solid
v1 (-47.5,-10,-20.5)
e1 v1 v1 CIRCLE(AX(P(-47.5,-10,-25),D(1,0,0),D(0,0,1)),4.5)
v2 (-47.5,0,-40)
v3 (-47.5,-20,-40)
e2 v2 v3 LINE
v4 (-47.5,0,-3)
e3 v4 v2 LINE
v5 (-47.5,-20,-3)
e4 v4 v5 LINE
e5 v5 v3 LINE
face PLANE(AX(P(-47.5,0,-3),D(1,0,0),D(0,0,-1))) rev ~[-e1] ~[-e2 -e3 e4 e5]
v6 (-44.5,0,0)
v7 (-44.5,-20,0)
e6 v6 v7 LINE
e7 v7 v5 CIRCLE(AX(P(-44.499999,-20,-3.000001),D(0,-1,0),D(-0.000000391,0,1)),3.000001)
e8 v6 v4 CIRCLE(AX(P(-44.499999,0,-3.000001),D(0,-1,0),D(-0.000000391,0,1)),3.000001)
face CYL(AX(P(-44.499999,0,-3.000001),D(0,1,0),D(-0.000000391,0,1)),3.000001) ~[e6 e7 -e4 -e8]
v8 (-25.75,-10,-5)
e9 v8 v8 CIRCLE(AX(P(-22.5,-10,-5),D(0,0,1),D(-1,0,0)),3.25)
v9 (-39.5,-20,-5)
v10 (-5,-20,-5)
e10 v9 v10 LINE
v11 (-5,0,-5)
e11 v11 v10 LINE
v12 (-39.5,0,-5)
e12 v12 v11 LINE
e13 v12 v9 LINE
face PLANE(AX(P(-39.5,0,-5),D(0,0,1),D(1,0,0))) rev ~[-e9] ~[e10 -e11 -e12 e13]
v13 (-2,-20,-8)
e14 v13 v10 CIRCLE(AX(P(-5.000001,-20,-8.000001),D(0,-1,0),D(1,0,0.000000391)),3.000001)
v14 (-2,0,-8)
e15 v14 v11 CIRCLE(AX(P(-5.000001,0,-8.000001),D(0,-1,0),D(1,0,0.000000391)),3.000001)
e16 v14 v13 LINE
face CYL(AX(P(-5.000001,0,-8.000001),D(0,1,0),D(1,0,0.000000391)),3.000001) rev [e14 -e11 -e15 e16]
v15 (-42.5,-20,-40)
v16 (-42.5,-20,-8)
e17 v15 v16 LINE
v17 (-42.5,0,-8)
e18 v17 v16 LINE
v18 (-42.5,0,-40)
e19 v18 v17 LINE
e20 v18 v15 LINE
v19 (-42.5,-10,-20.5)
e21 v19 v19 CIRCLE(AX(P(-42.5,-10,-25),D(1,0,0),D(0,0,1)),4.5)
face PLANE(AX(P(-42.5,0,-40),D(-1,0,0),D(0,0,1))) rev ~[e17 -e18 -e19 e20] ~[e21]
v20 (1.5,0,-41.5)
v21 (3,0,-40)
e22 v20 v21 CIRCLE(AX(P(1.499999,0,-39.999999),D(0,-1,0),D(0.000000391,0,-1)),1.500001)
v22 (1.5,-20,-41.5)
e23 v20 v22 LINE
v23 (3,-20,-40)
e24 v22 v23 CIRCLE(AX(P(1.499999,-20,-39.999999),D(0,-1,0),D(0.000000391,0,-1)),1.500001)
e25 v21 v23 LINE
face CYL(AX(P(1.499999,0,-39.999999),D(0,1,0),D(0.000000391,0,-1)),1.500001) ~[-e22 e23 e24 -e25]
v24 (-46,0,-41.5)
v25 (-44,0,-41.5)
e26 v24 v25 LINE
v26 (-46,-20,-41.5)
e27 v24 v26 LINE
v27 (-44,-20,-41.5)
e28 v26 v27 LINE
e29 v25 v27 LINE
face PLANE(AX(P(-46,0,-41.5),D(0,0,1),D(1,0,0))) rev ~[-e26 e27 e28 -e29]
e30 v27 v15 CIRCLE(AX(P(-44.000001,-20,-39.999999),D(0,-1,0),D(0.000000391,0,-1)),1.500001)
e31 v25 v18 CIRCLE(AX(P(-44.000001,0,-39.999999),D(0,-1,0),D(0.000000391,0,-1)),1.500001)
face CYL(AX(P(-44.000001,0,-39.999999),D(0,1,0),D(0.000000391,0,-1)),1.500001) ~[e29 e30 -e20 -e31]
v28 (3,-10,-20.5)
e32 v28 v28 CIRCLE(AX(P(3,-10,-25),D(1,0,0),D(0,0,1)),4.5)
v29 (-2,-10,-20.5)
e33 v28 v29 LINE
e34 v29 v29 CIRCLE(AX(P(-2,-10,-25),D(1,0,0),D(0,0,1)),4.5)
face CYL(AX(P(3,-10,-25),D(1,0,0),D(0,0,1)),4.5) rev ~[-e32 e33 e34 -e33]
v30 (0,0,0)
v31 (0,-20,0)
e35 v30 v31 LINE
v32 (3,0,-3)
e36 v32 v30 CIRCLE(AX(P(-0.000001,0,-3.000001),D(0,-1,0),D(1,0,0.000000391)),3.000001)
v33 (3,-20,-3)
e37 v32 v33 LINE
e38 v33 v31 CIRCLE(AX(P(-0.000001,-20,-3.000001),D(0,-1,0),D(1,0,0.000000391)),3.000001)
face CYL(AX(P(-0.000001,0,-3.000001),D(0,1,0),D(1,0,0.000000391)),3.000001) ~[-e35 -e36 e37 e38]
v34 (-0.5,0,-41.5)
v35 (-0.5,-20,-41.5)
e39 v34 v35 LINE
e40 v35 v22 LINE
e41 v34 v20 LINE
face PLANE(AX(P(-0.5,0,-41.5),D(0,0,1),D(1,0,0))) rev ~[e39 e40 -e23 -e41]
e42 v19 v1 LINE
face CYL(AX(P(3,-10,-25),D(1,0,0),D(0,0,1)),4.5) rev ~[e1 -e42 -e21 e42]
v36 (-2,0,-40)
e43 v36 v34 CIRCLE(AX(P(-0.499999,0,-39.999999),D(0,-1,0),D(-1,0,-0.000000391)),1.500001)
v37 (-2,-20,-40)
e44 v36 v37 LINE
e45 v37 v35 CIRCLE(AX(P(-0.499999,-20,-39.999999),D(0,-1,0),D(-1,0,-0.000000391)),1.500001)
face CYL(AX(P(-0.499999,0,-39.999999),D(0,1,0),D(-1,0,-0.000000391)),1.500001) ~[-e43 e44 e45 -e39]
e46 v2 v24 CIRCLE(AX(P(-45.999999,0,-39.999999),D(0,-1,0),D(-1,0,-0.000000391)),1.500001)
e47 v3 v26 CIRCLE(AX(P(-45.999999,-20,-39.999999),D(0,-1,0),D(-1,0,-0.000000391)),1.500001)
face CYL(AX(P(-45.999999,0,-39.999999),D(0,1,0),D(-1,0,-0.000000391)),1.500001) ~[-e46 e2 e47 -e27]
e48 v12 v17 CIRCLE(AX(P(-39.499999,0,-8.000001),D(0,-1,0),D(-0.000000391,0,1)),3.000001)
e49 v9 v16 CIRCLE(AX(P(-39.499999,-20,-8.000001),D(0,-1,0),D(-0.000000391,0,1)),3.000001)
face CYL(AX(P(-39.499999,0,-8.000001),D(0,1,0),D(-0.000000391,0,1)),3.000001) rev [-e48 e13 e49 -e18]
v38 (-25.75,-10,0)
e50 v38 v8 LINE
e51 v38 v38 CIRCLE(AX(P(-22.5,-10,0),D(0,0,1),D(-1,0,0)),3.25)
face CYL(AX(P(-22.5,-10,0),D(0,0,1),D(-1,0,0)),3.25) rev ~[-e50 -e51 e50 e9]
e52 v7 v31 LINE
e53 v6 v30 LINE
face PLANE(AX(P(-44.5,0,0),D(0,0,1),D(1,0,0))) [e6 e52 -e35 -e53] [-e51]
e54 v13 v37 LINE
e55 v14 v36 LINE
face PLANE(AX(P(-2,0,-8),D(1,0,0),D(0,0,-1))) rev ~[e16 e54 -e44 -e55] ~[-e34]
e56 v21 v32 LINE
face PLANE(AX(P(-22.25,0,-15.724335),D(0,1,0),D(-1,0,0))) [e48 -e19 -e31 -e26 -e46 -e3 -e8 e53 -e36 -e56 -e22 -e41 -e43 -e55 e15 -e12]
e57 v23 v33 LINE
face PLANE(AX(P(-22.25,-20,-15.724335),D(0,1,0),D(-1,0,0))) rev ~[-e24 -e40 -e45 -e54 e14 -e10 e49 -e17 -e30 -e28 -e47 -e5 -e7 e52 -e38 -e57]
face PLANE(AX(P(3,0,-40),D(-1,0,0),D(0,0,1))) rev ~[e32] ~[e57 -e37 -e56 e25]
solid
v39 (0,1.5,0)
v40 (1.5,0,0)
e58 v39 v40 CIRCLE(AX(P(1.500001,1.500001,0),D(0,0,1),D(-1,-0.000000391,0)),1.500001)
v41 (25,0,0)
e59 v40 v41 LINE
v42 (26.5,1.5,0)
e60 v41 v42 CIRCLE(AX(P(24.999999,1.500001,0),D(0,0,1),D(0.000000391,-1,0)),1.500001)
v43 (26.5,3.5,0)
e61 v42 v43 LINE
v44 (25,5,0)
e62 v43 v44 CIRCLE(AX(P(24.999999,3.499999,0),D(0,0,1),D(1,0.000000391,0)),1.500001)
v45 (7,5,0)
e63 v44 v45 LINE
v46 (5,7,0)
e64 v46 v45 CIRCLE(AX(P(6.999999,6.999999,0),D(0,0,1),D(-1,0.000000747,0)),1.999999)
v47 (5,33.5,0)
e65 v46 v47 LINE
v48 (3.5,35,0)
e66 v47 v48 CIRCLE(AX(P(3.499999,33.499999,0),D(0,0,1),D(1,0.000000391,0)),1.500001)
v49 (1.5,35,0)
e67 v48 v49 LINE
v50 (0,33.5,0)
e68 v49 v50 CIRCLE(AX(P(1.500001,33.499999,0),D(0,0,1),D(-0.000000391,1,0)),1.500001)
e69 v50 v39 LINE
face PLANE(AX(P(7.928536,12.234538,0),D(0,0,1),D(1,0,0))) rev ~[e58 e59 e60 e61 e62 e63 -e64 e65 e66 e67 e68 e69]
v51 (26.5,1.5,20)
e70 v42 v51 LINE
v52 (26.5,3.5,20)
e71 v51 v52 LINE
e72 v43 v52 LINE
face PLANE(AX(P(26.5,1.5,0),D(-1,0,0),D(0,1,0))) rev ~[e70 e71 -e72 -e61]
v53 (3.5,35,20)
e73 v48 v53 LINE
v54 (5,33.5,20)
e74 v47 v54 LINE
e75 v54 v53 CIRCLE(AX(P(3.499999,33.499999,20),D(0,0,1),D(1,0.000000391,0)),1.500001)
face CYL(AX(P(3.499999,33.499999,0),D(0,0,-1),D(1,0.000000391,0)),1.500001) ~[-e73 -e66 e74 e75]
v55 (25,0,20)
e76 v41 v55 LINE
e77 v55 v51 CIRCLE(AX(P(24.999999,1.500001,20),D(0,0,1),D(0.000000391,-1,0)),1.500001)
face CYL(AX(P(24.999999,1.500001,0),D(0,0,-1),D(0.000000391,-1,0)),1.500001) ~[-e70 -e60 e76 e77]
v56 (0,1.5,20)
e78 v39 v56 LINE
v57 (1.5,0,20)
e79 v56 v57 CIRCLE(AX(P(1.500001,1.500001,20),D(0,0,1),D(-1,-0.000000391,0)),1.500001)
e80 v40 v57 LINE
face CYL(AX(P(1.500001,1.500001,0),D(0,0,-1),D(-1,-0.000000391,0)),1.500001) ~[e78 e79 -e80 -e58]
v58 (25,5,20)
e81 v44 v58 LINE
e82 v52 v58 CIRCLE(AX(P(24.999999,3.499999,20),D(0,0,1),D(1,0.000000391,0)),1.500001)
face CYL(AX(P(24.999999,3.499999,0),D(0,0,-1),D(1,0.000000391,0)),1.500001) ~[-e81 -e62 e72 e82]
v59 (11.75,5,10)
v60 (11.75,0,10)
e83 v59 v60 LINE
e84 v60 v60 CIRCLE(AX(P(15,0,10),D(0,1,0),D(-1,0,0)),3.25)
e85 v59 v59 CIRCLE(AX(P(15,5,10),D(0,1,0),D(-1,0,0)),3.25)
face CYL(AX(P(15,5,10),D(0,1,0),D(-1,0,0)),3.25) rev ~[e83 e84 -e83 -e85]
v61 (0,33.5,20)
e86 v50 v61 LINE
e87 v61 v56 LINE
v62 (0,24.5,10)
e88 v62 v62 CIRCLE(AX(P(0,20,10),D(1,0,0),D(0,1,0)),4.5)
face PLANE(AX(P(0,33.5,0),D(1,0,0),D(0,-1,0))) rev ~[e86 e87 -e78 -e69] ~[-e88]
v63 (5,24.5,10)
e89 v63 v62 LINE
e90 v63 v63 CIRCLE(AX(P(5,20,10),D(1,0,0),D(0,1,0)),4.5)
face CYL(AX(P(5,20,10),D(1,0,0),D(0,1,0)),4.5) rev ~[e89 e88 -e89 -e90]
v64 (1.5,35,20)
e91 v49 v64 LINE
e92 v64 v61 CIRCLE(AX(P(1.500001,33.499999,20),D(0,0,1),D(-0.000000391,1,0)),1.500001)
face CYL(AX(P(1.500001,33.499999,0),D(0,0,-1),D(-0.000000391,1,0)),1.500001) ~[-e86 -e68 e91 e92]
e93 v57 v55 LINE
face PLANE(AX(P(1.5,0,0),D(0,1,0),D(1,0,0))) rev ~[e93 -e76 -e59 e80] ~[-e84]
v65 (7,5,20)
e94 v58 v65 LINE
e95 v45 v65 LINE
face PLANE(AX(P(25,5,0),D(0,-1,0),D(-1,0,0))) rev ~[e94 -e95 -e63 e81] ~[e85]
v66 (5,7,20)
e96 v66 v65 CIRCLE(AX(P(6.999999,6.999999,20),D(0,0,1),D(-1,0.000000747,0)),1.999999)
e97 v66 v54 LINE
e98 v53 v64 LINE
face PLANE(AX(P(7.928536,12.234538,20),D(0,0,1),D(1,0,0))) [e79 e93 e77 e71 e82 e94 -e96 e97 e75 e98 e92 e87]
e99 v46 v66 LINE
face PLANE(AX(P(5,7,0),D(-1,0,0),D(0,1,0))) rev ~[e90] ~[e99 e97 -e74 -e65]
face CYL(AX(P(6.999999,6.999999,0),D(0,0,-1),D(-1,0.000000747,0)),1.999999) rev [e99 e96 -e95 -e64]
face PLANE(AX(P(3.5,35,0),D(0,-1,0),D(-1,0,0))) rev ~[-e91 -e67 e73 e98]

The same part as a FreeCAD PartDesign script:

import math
import FreeCAD as App
import Part
import Sketcher
from FreeCAD import Vector

doc = App.newDocument("Part")
body = doc.addObject("PartDesign::Body", "Body")

# Sketch on XY plane
sketch1 = doc.addObject("Sketcher::SketchObject", "Sketch")
body.addObject(sketch1)
sketch1.AttachmentSupport = (doc.XY_Plane, [""])
sketch1.MapMode = "FlatFace"
sketch1.addGeometry(Part.LineSegment(Vector(0, 33.5, 0), Vector(0, 1.5, 0)), False)
sketch1.addGeometry(Part.ArcOfCircle(Part.Circle(Vector(1.5, 1.5, 0), Vector(0, 0, 1), 1.5), math.radians(-180), math.radians(-90)), False)
sketch1.addGeometry(Part.LineSegment(Vector(1.5, 0, 0), Vector(25, 0, 0)), False)
sketch1.addGeometry(Part.ArcOfCircle(Part.Circle(Vector(25, 1.5, 0), Vector(0, 0, 1), 1.5), math.radians(-90), math.radians(0)), False)
sketch1.addGeometry(Part.LineSegment(Vector(26.5, 1.5, 0), Vector(26.5, 3.5, 0)), False)
sketch1.addGeometry(Part.ArcOfCircle(Part.Circle(Vector(25, 3.5, 0), Vector(0, 0, 1), 1.5), math.radians(0), math.radians(90)), False)
sketch1.addGeometry(Part.LineSegment(Vector(25, 5, 0), Vector(7, 5, 0)), False)
sketch1.addGeometry(Part.ArcOfCircle(Part.Circle(Vector(7, 7, 0), Vector(0, 0, 1), 2), math.radians(180), math.radians(270)), False)
sketch1.addGeometry(Part.LineSegment(Vector(5, 7, 0), Vector(5, 33.5, 0)), False)
sketch1.addGeometry(Part.ArcOfCircle(Part.Circle(Vector(3.5, 33.5, 0), Vector(0, 0, 1), 1.5), math.radians(0), math.radians(90)), False)
sketch1.addGeometry(Part.LineSegment(Vector(3.5, 35, 0), Vector(1.5, 35, 0)), False)
sketch1.addGeometry(Part.ArcOfCircle(Part.Circle(Vector(1.5, 33.5, 0), Vector(0, 0, 1), 1.5), math.radians(90), math.radians(180)), False)
sketch1.addConstraint(Sketcher.Constraint("Tangent", 0, 2, 1, 1))
sketch1.addConstraint(Sketcher.Constraint("Tangent", 1, 2, 2, 1))
sketch1.addConstraint(Sketcher.Constraint("Tangent", 2, 2, 3, 1))
sketch1.addConstraint(Sketcher.Constraint("Tangent", 3, 2, 4, 1))
sketch1.addConstraint(Sketcher.Constraint("Tangent", 4, 2, 5, 1))
sketch1.addConstraint(Sketcher.Constraint("Tangent", 5, 2, 6, 1))
sketch1.addConstraint(Sketcher.Constraint("Tangent", 6, 2, 7, 2))
sketch1.addConstraint(Sketcher.Constraint("Tangent", 7, 1, 8, 1))
sketch1.addConstraint(Sketcher.Constraint("Tangent", 8, 2, 9, 1))
sketch1.addConstraint(Sketcher.Constraint("Tangent", 9, 2, 10, 1))
sketch1.addConstraint(Sketcher.Constraint("Tangent", 10, 2, 11, 1))
sketch1.addConstraint(Sketcher.Constraint("Tangent", 11, 2, 0, 1))
sketch1.addConstraint(Sketcher.Constraint("Vertical", 0))
sketch1.addConstraint(Sketcher.Constraint("Horizontal", 2))
sketch1.addConstraint(Sketcher.Constraint("Vertical", 4))
sketch1.addConstraint(Sketcher.Constraint("Horizontal", 6))
sketch1.addConstraint(Sketcher.Constraint("Vertical", 8))
sketch1.addConstraint(Sketcher.Constraint("Horizontal", 10))
sketch1.addConstraint(Sketcher.Constraint("Equal", 1, 3))
sketch1.addConstraint(Sketcher.Constraint("Equal", 3, 5))
sketch1.addConstraint(Sketcher.Constraint("Equal", 5, 9))
sketch1.addConstraint(Sketcher.Constraint("Equal", 9, 11))
sketch1.addConstraint(Sketcher.Constraint("PointOnObject", 0, 2, -2))
sketch1.addConstraint(Sketcher.Constraint("PointOnObject", 1, 2, -1))
sketch1.addConstraint(Sketcher.Constraint("Equal", 10, 4))
sketch1.addConstraint(Sketcher.Constraint("Radius", 7, 1.999999))
sketch1.addConstraint(Sketcher.Constraint("Radius", 1, 1.500001))
sketch1.addConstraint(Sketcher.Constraint("DistanceX", 6, 2, 6, 1, 18.0))
sketch1.addConstraint(Sketcher.Constraint("DistanceX", 10, 2, 10, 1, 2.0))
sketch1.addConstraint(Sketcher.Constraint("DistanceY", 0, 2, 0, 1, 32.0))
pad1 = doc.addObject("PartDesign::Pad", "Pad")
body.addObject(pad1)
pad1.Profile = sketch1
pad1.Length = 20

# Sketch on YZ plane
sketch2 = doc.addObject("Sketcher::SketchObject", "Sketch001")
body.addObject(sketch2)
sketch2.AttachmentSupport = (doc.YZ_Plane, [""])
sketch2.MapMode = "FlatFace"
sketch2.AttachmentOffset = App.Placement(Vector(0, 0, 5), App.Rotation())
sketch2.addGeometry(Part.Circle(Vector(20, 10, 0), Vector(0, 0, 1), 4.5), False)
sketch2.addConstraint(Sketcher.Constraint("Diameter", 0, 9.0))
sketch2.addConstraint(Sketcher.Constraint("DistanceX", -1, 1, 0, 3, 20.0))
sketch2.addConstraint(Sketcher.Constraint("DistanceY", -1, 1, 0, 3, 10.0))
pocket1 = doc.addObject("PartDesign::Pocket", "Pocket")
body.addObject(pocket1)
pocket1.Profile = sketch2
pocket1.Length = 5

# Sketch on XZ plane
sketch3 = doc.addObject("Sketcher::SketchObject", "Sketch002")
body.addObject(sketch3)
sketch3.AttachmentSupport = (doc.XZ_Plane, [""])
sketch3.MapMode = "FlatFace"
sketch3.AttachmentOffset = App.Placement(Vector(0, 0, -5), App.Rotation())
sketch3.addGeometry(Part.Circle(Vector(15, 10, 0), Vector(0, 0, 1), 3.2), False)
sketch3.addConstraint(Sketcher.Constraint("Diameter", 0, 6.5))
sketch3.addConstraint(Sketcher.Constraint("DistanceX", -1, 1, 0, 3, 15.0))
sketch3.addConstraint(Sketcher.Constraint("DistanceY", -1, 1, 0, 3, 10.0))
pocket2 = doc.addObject("PartDesign::Pocket", "Pocket001")
body.addObject(pocket2)
pocket2.Profile = sketch3
pocket2.Length = 5
pocket2.Reversed = True
body2 = doc.addObject("PartDesign::Body", "Body001")

# Sketch on XZ plane
sketch4 = doc.addObject("Sketcher::SketchObject", "Sketch003")
body2.addObject(sketch4)
sketch4.AttachmentSupport = (doc.getObject("XZ_Plane001"), [""])
sketch4.MapMode = "FlatFace"
sketch4.addGeometry(Part.LineSegment(Vector(0, 0, 0), Vector(-44.5, 0, 0)), False)
sketch4.addGeometry(Part.ArcOfCircle(Part.Circle(Vector(-44.5, -3, 0), Vector(0, 0, 1), 3), math.radians(90), math.radians(180)), False)
sketch4.addGeometry(Part.LineSegment(Vector(-47.5, -3, 0), Vector(-47.5, -40, 0)), False)
sketch4.addGeometry(Part.ArcOfCircle(Part.Circle(Vector(-46, -40, 0), Vector(0, 0, 1), 1.5), math.radians(-180), math.radians(-90)), False)
sketch4.addGeometry(Part.LineSegment(Vector(-46, -41.5, 0), Vector(-44, -41.5, 0)), False)
sketch4.addGeometry(Part.ArcOfCircle(Part.Circle(Vector(-44, -40, 0), Vector(0, 0, 1), 1.5), math.radians(-90), math.radians(0)), False)
sketch4.addGeometry(Part.LineSegment(Vector(-42.5, -40, 0), Vector(-42.5, -8, 0)), False)
sketch4.addGeometry(Part.ArcOfCircle(Part.Circle(Vector(-39.5, -8, 0), Vector(0, 0, 1), 3), math.radians(90), math.radians(180)), False)
sketch4.addGeometry(Part.LineSegment(Vector(-39.5, -5, 0), Vector(-5, -5, 0)), False)
sketch4.addGeometry(Part.ArcOfCircle(Part.Circle(Vector(-5, -8, 0), Vector(0, 0, 1), 3), math.radians(0), math.radians(90)), False)
sketch4.addGeometry(Part.LineSegment(Vector(-2, -8, 0), Vector(-2, -40, 0)), False)
sketch4.addGeometry(Part.ArcOfCircle(Part.Circle(Vector(-0.5, -40, 0), Vector(0, 0, 1), 1.5), math.radians(-180), math.radians(-90)), False)
sketch4.addGeometry(Part.LineSegment(Vector(-0.5, -41.5, 0), Vector(1.5, -41.5, 0)), False)
sketch4.addGeometry(Part.ArcOfCircle(Part.Circle(Vector(1.5, -40, 0), Vector(0, 0, 1), 1.5), math.radians(-90), math.radians(0)), False)
sketch4.addGeometry(Part.LineSegment(Vector(3, -40, 0), Vector(3, -3, 0)), False)
sketch4.addGeometry(Part.ArcOfCircle(Part.Circle(Vector(0, -3, 0), Vector(0, 0, 1), 3), math.radians(0), math.radians(90)), False)
sketch4.addConstraint(Sketcher.Constraint("Tangent", 0, 2, 1, 1))
sketch4.addConstraint(Sketcher.Constraint("Tangent", 1, 2, 2, 1))
sketch4.addConstraint(Sketcher.Constraint("Tangent", 2, 2, 3, 1))
sketch4.addConstraint(Sketcher.Constraint("Tangent", 3, 2, 4, 1))
sketch4.addConstraint(Sketcher.Constraint("Tangent", 4, 2, 5, 1))
sketch4.addConstraint(Sketcher.Constraint("Tangent", 5, 2, 6, 1))
sketch4.addConstraint(Sketcher.Constraint("Tangent", 6, 2, 7, 2))
sketch4.addConstraint(Sketcher.Constraint("Tangent", 7, 1, 8, 1))
sketch4.addConstraint(Sketcher.Constraint("Tangent", 8, 2, 9, 2))
sketch4.addConstraint(Sketcher.Constraint("Tangent", 9, 1, 10, 1))
sketch4.addConstraint(Sketcher.Constraint("Tangent", 10, 2, 11, 1))
sketch4.addConstraint(Sketcher.Constraint("Tangent", 11, 2, 12, 1))
sketch4.addConstraint(Sketcher.Constraint("Tangent", 12, 2, 13, 1))
sketch4.addConstraint(Sketcher.Constraint("Tangent", 13, 2, 14, 1))
sketch4.addConstraint(Sketcher.Constraint("Tangent", 14, 2, 15, 1))
sketch4.addConstraint(Sketcher.Constraint("Tangent", 15, 2, 0, 1))
sketch4.addConstraint(Sketcher.Constraint("Horizontal", 0))
sketch4.addConstraint(Sketcher.Constraint("Vertical", 2))
sketch4.addConstraint(Sketcher.Constraint("Horizontal", 4))
sketch4.addConstraint(Sketcher.Constraint("Vertical", 6))
sketch4.addConstraint(Sketcher.Constraint("Horizontal", 8))
sketch4.addConstraint(Sketcher.Constraint("Vertical", 10))
sketch4.addConstraint(Sketcher.Constraint("Horizontal", 12))
sketch4.addConstraint(Sketcher.Constraint("Vertical", 14))
sketch4.addConstraint(Sketcher.Constraint("Coincident", 15, 2, -1, 1))
sketch4.addConstraint(Sketcher.Constraint("Equal", 3, 5))
sketch4.addConstraint(Sketcher.Constraint("Equal", 1, 7))
sketch4.addConstraint(Sketcher.Constraint("Equal", 7, 9))
sketch4.addConstraint(Sketcher.Constraint("Equal", 5, 11))
sketch4.addConstraint(Sketcher.Constraint("Equal", 11, 13))
sketch4.addConstraint(Sketcher.Constraint("Equal", 9, 15))
sketch4.addConstraint(Sketcher.Constraint("Horizontal", 5, 3, 11, 3))
sketch4.addConstraint(Sketcher.Constraint("Equal", 4, 12))
sketch4.addConstraint(Sketcher.Constraint("Radius", 1, 3.000001))
sketch4.addConstraint(Sketcher.Constraint("Radius", 3, 1.500001))
sketch4.addConstraint(Sketcher.Constraint("DistanceX", 4, 1, 4, 2, 2.0))
sketch4.addConstraint(Sketcher.Constraint("DistanceY", 2, 2, 2, 1, 37.0))
sketch4.addConstraint(Sketcher.Constraint("DistanceY", 6, 1, 6, 2, 32.0))
sketch4.addConstraint(Sketcher.Constraint("DistanceX", 0, 2, 0, 1, 44.5))
pad2 = doc.addObject("PartDesign::Pad", "Pad001")
body2.addObject(pad2)
pad2.Profile = sketch4
pad2.Length = 20

# Sketch on XY plane
sketch5 = doc.addObject("Sketcher::SketchObject", "Sketch004")
body2.addObject(sketch5)
sketch5.AttachmentSupport = (doc.getObject("XY_Plane001"), [""])
sketch5.MapMode = "FlatFace"
sketch5.addGeometry(Part.Circle(Vector(-22.5, -10, 0), Vector(0, 0, 1), 3.2), False)
sketch5.addConstraint(Sketcher.Constraint("Diameter", 0, 6.5))
sketch5.addConstraint(Sketcher.Constraint("DistanceY", 0, 3, -1, 1, 10.0))
sketch5.addConstraint(Sketcher.Constraint("DistanceX", 0, 3, -1, 1, 22.5))
pocket3 = doc.addObject("PartDesign::Pocket", "Pocket002")
body2.addObject(pocket3)
pocket3.Profile = sketch5
pocket3.Length = 5

# Sketch on YZ plane
sketch6 = doc.addObject("Sketcher::SketchObject", "Sketch005")
body2.addObject(sketch6)
sketch6.AttachmentSupport = (doc.getObject("YZ_Plane001"), [""])
sketch6.MapMode = "FlatFace"
sketch6.AttachmentOffset = App.Placement(Vector(0, 0, 3), App.Rotation())
sketch6.addGeometry(Part.Circle(Vector(-10, -25, 0), Vector(0, 0, 1), 4.5), False)
sketch6.addConstraint(Sketcher.Constraint("Diameter", 0, 9.0))
sketch6.addConstraint(Sketcher.Constraint("DistanceX", 0, 3, -1, 1, 10.0))
sketch6.addConstraint(Sketcher.Constraint("DistanceY", 0, 3, -1, 1, 25.0))
pocket4 = doc.addObject("PartDesign::Pocket", "Pocket003")
body2.addObject(pocket4)
pocket4.Profile = sketch6
pocket4.Length = 60

doc.recompute()
